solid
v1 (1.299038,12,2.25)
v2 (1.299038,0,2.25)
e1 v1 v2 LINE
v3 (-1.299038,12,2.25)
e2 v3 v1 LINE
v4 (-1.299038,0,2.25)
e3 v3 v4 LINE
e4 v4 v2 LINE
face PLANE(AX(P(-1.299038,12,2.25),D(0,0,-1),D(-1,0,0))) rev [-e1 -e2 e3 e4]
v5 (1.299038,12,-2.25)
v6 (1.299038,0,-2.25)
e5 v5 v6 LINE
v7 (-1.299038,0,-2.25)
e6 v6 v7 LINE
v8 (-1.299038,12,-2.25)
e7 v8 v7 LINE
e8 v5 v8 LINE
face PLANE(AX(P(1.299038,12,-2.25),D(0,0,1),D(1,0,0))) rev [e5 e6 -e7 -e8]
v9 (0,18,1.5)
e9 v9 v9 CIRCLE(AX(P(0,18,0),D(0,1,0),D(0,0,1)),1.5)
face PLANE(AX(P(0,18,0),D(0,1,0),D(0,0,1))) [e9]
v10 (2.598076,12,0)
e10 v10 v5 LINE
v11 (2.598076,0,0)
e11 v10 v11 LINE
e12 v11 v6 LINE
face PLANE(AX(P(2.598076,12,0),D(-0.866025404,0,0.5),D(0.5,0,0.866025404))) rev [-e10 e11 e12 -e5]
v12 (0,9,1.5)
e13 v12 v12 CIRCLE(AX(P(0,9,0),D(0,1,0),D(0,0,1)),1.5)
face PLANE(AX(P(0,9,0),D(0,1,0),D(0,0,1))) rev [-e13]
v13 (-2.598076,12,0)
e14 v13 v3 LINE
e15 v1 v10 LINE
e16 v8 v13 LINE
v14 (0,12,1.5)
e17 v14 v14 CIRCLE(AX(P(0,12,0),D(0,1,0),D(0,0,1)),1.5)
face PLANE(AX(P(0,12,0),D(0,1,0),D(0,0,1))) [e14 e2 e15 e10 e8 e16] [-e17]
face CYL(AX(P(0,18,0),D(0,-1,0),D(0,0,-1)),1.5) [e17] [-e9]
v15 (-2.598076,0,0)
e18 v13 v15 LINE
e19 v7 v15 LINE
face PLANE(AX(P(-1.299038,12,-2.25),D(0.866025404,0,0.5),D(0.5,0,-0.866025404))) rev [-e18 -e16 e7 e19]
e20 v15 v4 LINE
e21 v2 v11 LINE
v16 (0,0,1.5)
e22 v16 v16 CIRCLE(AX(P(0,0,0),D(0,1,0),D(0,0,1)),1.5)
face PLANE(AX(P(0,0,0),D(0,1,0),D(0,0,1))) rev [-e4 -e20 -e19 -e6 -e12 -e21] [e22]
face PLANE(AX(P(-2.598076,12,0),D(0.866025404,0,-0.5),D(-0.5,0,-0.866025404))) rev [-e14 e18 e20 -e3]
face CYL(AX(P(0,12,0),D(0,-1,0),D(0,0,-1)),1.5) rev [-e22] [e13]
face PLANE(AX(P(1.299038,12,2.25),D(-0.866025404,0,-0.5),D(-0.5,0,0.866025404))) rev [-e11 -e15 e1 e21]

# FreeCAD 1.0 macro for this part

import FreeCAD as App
import Part
import Sketcher
Q = App.Units.Quantity


def add_polygon(sketch, points):
    """Adds a closed chain of lines whose ends are joined by coincident constraints."""
    first, n = sketch.GeometryCount, len(points)
    for a, b in zip(points, points[1:] + points[:1]):
        sketch.addGeometry(Part.LineSegment(App.Vector(*a, 0), App.Vector(*b, 0)), False)
    for i in range(n):
        sketch.addConstraint(Sketcher.Constraint("Coincident", first + i, 2, first + (i + 1) % n, 1))

doc = App.newDocument("Part")
body = doc.addObject("PartDesign::Body", "Body")

sketch1 = body.newObject("Sketcher::SketchObject", "Sketch")
sketch1.AttachmentSupport = (doc.getObject("XZ_Plane"), [""])
sketch1.MapMode = "FlatFace"
add_polygon(sketch1, [(2.6, 0), (1.3, -2.2), (-1.3, -2.2), (-2.6, 0), (-1.3, 2.2), (1.3, 2.2)])
sketch1.addGeometry(Part.Circle(App.Vector(0, 0, 0), App.Vector(0, 0, 1), 1.5), False)
sketch1.addConstraint([
    Sketcher.Constraint("Horizontal", 1),
    Sketcher.Constraint("Horizontal", 4),
    Sketcher.Constraint("Coincident", 6, 3, -1, 1),
    Sketcher.Constraint("Symmetric", 0, 2, 3, 2, -1, 1),
    Sketcher.Constraint("Symmetric", 2, 2, 5, 2, -1, 1),
    Sketcher.Constraint("PointOnObject", 2, 2, -1),
    Sketcher.Constraint("Parallel", 2, 5),
    Sketcher.Constraint("Vertical", 1, 2, 3, 2),
    Sketcher.Constraint("Diameter", 6, 3.0),
    Sketcher.Constraint("Angle", 0, Q("-120 deg")),
    Sketcher.Constraint("DistanceY", 1, 2, 3, 2, 4.5),
    Sketcher.Constraint("DistanceX", 1, 2, 1, 1, 2.598076),
])
pad1 = body.newObject("PartDesign::Pad", "Pad")
pad1.Profile = sketch1
pad1.Length = 12
pad1.Reversed = True

sketch2 = body.newObject("Sketcher::SketchObject", "Sketch001")
sketch2.AttachmentSupport = (doc.getObject("XZ_Plane"), [""])
sketch2.MapMode = "FlatFace"
sketch2.AttachmentOffset = App.Placement(App.Vector(0, 0, -12), App.Rotation())
add_polygon(sketch2, [(2.6, 0), (1.3, -2.2), (-1.3, -2.2), (-2.6, 0), (-1.3, 2.2), (1.3, 2.2)])
sketch2.addConstraint([
    Sketcher.Constraint("Horizontal", 1),
    Sketcher.Constraint("Horizontal", 4),
    Sketcher.Constraint("Symmetric", 0, 2, 3, 2, -1, 1),
    Sketcher.Constraint("Symmetric", 2, 2, 5, 2, -1, 1),
    Sketcher.Constraint("PointOnObject", 2, 2, -1),
    Sketcher.Constraint("Parallel", 2, 5),
    Sketcher.Constraint("Vertical", 1, 2, 3, 2),
    Sketcher.Constraint("Angle", 0, Q("-120 deg")),
    Sketcher.Constraint("DistanceY", 1, 2, 3, 2, 4.5),
    Sketcher.Constraint("DistanceX", 1, 2, 1, 1, 2.598076),
])
pad2 = body.newObject("PartDesign::Pad", "Pad001")
pad2.Profile = sketch2
pad2.Length = 3

sketch3 = body.newObject("Sketcher::SketchObject", "Sketch002")
sketch3.AttachmentSupport = (doc.getObject("XZ_Plane"), [""])
sketch3.MapMode = "FlatFace"
sketch3.AttachmentOffset = App.Placement(App.Vector(0, 0, -12), App.Rotation())
sketch3.addGeometry(Part.Circle(App.Vector(0, 0, 0), App.Vector(0, 0, 1), 1.5), False)
sketch3.addConstraint([
    Sketcher.Constraint("Coincident", 0, 3, -1, 1),
    Sketcher.Constraint("Diameter", 0, 3.0),
])
pad3 = body.newObject("PartDesign::Pad", "Pad002")
pad3.Profile = sketch3
pad3.Length = 6
pad3.Reversed = True

doc.recompute()
